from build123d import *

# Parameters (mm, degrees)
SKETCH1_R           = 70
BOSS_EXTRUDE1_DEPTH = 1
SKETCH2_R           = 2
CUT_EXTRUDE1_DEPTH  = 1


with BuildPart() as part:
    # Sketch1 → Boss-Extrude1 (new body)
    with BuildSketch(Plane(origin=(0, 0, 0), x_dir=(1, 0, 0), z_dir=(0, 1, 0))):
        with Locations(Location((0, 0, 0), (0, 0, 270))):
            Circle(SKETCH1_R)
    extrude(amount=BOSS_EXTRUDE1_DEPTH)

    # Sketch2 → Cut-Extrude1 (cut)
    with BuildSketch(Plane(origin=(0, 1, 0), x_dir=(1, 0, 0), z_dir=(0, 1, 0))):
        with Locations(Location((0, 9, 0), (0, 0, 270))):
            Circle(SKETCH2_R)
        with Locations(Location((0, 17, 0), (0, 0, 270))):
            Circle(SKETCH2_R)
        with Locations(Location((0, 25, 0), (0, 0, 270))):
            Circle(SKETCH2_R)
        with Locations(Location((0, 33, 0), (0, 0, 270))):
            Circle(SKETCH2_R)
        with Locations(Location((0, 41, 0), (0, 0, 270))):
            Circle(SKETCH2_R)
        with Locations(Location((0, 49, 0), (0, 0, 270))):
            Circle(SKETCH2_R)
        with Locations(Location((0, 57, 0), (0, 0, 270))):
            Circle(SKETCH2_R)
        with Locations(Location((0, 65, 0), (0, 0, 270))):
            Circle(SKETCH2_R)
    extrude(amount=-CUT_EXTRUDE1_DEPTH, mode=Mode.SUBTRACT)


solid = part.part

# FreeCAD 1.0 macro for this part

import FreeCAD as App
import Part
import Sketcher
from FreeCAD import Vector

doc = App.newDocument("Part")
params = doc.addObject("Spreadsheet::Sheet", "Params")
for row, (alias, value) in enumerate([
    ("sketch1_diameter", "140 mm"),
    ("pad1_length", "1 mm"),
    ("sketch2_diameter", "4 mm"),
    ("pocket1_length", "1 mm"),
], start=1):
    params.set(f"A{row}", alias)
    params.set(f"B{row}", "=" + value)
    params.setAlias(f"B{row}", alias)

body = doc.addObject("PartDesign::Body", "Body")

sketch1 = doc.addObject("Sketcher::SketchObject", "Sketch")
body.addObject(sketch1)
sketch1.AttachmentSupport = (doc.XZ_Plane, [""])
sketch1.MapMode = "FlatFace"
sketch1.addGeometry(Part.Circle(Vector(0, 0, 0), Vector(0, 0, 1), 70), False)
sketch1.addConstraint(Sketcher.Constraint("Coincident", 0, 3, -1, 1))
sketch1.addConstraint(Sketcher.Constraint("Diameter", 0, 140.0))
sketch1.setExpression("Constraints[1]", "Params.sketch1_diameter")
pad1 = doc.addObject("PartDesign::Pad", "Pad")
body.addObject(pad1)
pad1.Profile = sketch1
pad1.setExpression("Length", "Params.pad1_length")
pad1.Reversed = True

sketch2 = doc.addObject("Sketcher::SketchObject", "Sketch001")
body.addObject(sketch2)
sketch2.AttachmentSupport = (doc.XZ_Plane, [""])
sketch2.MapMode = "FlatFace"
sketch2.AttachmentOffset = App.Placement(Vector(0, 0, -1), App.Rotation())
sketch2.addGeometry(Part.Circle(Vector(0, -9, 0), Vector(0, 0, 1), 2), False)
sketch2.addGeometry(Part.Circle(Vector(0, -17, 0), Vector(0, 0, 1), 2), False)
sketch2.addGeometry(Part.Circle(Vector(0, -25, 0), Vector(0, 0, 1), 2), False)
sketch2.addGeometry(Part.Circle(Vector(0, -33, 0), Vector(0, 0, 1), 2), False)
sketch2.addGeometry(Part.Circle(Vector(0, -41, 0), Vector(0, 0, 1), 2), False)
sketch2.addGeometry(Part.Circle(Vector(0, -49, 0), Vector(0, 0, 1), 2), False)
sketch2.addGeometry(Part.Circle(Vector(0, -57, 0), Vector(0, 0, 1), 2), False)
sketch2.addGeometry(Part.Circle(Vector(0, -65, 0), Vector(0, 0, 1), 2), False)
sketch2.addConstraint(Sketcher.Constraint("Equal", 0, 1))
sketch2.addConstraint(Sketcher.Constraint("Equal", 1, 2))
sketch2.addConstraint(Sketcher.Constraint("Equal", 2, 3))
sketch2.addConstraint(Sketcher.Constraint("Equal", 3, 4))
sketch2.addConstraint(Sketcher.Constraint("Equal", 4, 5))
sketch2.addConstraint(Sketcher.Constraint("Equal", 5, 6))
sketch2.addConstraint(Sketcher.Constraint("Equal", 6, 7))
sketch2.addConstraint(Sketcher.Constraint("PointOnObject", 0, 3, -2))
sketch2.addConstraint(Sketcher.Constraint("PointOnObject", 1, 3, -2))
sketch2.addConstraint(Sketcher.Constraint("PointOnObject", 2, 3, -2))
sketch2.addConstraint(Sketcher.Constraint("PointOnObject", 3, 3, -2))
sketch2.addConstraint(Sketcher.Constraint("PointOnObject", 4, 3, -2))
sketch2.addConstraint(Sketcher.Constraint("PointOnObject", 5, 3, -2))
sketch2.addConstraint(Sketcher.Constraint("PointOnObject", 6, 3, -2))
sketch2.addConstraint(Sketcher.Constraint("PointOnObject", 7, 3, -2))
sketch2.addConstraint(Sketcher.Constraint("Diameter", 0, 4.0))
sketch2.addConstraint(Sketcher.Constraint("DistanceY", 0, 3, -1, 1, 9.0))
sketch2.addConstraint(Sketcher.Constraint("DistanceY", 1, 3, -1, 1, 17.0))
sketch2.addConstraint(Sketcher.Constraint("DistanceY", 2, 3, -1, 1, 25.0))
sketch2.addConstraint(Sketcher.Constraint("DistanceY", 3, 3, -1, 1, 33.0))
sketch2.addConstraint(Sketcher.Constraint("DistanceY", 4, 3, -1, 1, 41.0))
sketch2.addConstraint(Sketcher.Constraint("DistanceY", 5, 3, -1, 1, 49.0))
sketch2.addConstraint(Sketcher.Constraint("DistanceY", 6, 3, -1, 1, 57.0))
sketch2.addConstraint(Sketcher.Constraint("DistanceY", 7, 3, -1, 1, 65.0))
sketch2.setExpression("Constraints[15]", "Params.sketch2_diameter")
pocket1 = doc.addObject("PartDesign::Pocket", "Pocket")
body.addObject(pocket1)
pocket1.Profile = sketch2
pocket1.setExpression("Length", "Params.pocket1_length")
pocket1.Reversed = True

doc.recompute()
